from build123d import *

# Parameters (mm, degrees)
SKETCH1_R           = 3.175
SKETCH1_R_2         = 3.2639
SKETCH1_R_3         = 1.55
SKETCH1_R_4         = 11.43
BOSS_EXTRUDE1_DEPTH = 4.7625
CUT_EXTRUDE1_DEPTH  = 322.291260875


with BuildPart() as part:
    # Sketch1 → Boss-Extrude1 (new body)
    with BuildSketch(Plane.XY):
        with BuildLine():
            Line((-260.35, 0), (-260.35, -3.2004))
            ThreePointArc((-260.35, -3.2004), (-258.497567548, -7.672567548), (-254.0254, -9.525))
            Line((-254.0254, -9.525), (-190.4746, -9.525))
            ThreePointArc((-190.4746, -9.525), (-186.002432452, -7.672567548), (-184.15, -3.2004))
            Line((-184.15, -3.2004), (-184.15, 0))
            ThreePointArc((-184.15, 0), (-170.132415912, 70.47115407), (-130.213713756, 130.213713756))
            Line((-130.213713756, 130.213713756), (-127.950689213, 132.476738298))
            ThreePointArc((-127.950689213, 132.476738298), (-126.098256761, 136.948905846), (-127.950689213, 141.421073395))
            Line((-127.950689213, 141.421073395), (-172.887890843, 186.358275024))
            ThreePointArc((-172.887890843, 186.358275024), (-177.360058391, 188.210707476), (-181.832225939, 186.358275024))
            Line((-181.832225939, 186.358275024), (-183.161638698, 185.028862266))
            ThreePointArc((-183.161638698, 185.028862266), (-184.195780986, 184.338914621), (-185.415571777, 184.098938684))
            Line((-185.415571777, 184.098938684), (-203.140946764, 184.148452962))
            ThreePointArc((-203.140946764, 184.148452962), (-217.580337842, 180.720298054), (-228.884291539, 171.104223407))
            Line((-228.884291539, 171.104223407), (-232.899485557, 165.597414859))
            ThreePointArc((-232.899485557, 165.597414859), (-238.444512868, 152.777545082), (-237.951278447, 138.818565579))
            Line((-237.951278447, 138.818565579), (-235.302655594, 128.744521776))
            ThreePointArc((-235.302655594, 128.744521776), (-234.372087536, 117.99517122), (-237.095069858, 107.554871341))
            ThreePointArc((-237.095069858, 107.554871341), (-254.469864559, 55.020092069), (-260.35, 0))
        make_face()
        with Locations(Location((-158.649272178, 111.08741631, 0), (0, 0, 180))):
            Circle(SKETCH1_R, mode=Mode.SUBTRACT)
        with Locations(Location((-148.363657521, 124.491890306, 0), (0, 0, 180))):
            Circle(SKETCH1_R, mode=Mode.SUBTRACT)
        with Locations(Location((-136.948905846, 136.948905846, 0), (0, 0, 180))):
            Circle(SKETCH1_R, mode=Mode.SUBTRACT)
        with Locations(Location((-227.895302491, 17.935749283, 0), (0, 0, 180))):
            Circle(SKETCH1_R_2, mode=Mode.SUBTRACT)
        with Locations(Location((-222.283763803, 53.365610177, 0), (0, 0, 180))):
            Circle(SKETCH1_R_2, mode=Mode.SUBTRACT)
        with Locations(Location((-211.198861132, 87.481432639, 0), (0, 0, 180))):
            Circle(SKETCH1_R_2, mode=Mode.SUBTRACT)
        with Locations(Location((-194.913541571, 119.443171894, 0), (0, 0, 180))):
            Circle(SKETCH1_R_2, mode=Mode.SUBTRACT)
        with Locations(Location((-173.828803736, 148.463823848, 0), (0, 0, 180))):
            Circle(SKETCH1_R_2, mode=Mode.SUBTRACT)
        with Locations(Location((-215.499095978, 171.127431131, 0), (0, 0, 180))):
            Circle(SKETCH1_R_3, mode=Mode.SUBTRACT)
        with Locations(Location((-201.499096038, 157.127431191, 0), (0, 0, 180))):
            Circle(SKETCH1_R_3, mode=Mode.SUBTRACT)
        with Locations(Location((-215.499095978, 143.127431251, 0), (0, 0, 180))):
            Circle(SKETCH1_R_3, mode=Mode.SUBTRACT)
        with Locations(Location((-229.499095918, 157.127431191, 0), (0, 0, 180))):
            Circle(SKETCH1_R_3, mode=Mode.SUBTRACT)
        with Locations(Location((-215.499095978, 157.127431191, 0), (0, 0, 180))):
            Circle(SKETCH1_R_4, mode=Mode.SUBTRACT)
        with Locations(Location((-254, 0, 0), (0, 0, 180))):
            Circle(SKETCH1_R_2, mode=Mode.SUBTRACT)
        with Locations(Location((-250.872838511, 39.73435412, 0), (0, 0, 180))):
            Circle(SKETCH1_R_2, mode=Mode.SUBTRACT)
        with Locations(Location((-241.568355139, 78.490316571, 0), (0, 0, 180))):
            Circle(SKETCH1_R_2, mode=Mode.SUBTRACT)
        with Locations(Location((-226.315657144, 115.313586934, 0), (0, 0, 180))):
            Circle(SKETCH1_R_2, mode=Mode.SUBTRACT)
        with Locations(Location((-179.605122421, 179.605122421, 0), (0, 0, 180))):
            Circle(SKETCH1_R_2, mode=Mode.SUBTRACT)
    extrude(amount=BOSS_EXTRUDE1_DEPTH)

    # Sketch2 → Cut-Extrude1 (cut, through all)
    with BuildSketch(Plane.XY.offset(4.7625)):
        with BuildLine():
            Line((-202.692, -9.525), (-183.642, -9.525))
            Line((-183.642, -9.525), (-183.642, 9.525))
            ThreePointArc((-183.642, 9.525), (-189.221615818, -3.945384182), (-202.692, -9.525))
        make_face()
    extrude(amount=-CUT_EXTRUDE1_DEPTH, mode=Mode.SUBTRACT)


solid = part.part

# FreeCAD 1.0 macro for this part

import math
import FreeCAD as App
import Part
import Sketcher
Q = App.Units.Quantity

doc = App.newDocument("Part")
body = doc.addObject("PartDesign::Body", "Body")

# Sketch on XY plane
sketch1 = body.newObject("Sketcher::SketchObject", "Sketch")
sketch1.AttachmentSupport = (doc.getObject("XY_Plane"), [""])
sketch1.MapMode = "FlatFace"
sketch1.addGeometry(Part.LineSegment(App.Vector(-260.35, 0, 0), App.Vector(-260.35, -3.2004, 0)), False)
sketch1.addGeometry(Part.ArcOfCircle(Part.Circle(App.Vector(-254.0254, -3.2004, 0), App.Vector(0, 0, 1), 6.3246), math.radians(-180), math.radians(-90)), False)
sketch1.addGeometry(Part.LineSegment(App.Vector(-254.0254, -9.525, 0), App.Vector(-190.4746, -9.525, 0)), False)
sketch1.addGeometry(Part.ArcOfCircle(Part.Circle(App.Vector(-190.4746, -3.2004, 0), App.Vector(0, 0, 1), 6.3246), math.radians(-90), math.radians(0)), False)
sketch1.addGeometry(Part.LineSegment(App.Vector(-184.15, -3.2004, 0), App.Vector(-184.15, 0, 0)), False)
sketch1.addGeometry(Part.ArcOfCircle(Part.Circle(App.Vector(0, 0, 0), App.Vector(0, 0, 1), 184.15), math.radians(135), math.radians(180)), False)
sketch1.addGeometry(Part.LineSegment(App.Vector(-130.213714, 130.213714, 0), App.Vector(-127.950689, 132.476738, 0)), False)
sketch1.addGeometry(Part.ArcOfCircle(Part.Circle(App.Vector(-132.422857, 136.948906, 0), App.Vector(0, 0, 1), 6.3246), math.radians(-45), math.radians(45)), False)
sketch1.addGeometry(Part.LineSegment(App.Vector(-127.950689, 141.421073, 0), App.Vector(-172.887891, 186.358275, 0)), False)
sketch1.addGeometry(Part.ArcOfCircle(Part.Circle(App.Vector(-177.360058, 181.886107, 0), App.Vector(0, 0, 1), 6.3246), math.radians(45), math.radians(135)), False)
sketch1.addGeometry(Part.LineSegment(App.Vector(-181.832226, 186.358275, 0), App.Vector(-183.161639, 185.028862, 0)), False)
sketch1.addGeometry(Part.ArcOfCircle(Part.Circle(App.Vector(-185.406703, 187.273926, 0), App.Vector(0, 0, 1), 3.175), math.radians(-90.16005), math.radians(-45)), False)
sketch1.addGeometry(Part.LineSegment(App.Vector(-185.415572, 184.098939, 0), App.Vector(-203.140947, 184.148453, 0)), False)
sketch1.addGeometry(Part.ArcOfCircle(Part.Circle(App.Vector(-203.229637, 152.398577, 0), App.Vector(0, 0, 1), 31.75), math.radians(89.83995), math.radians(143.902988)), False)
sketch1.addGeometry(Part.LineSegment(App.Vector(-228.884292, 171.104223, 0), App.Vector(-232.899486, 165.597415, 0)), False)
sketch1.addGeometry(Part.ArcOfCircle(Part.Circle(App.Vector(-207.244831, 146.891768, 0), App.Vector(0, 0, 1), 31.75), math.radians(143.902988), math.radians(194.730577)), False)
sketch1.addGeometry(Part.LineSegment(App.Vector(-237.951278, 138.818566, 0), App.Vector(-235.302656, 128.744522, 0)), False)
sketch1.addGeometry(Part.ArcOfCircle(Part.Circle(App.Vector(-266.009103, 120.671319, 0), App.Vector(0, 0, 1), 31.75), math.radians(-24.400757), math.radians(14.730577)), False)
sketch1.addGeometry(Part.ArcOfCircle(Part.Circle(App.Vector(0, 0, 0), App.Vector(0, 0, 1), 260.35), math.radians(155.599243), math.radians(180)), False)
sketch1.addGeometry(Part.Circle(App.Vector(-254, 0, 0), App.Vector(0, 0, 1), 3.2639), False)
sketch1.addGeometry(Part.Circle(App.Vector(-227.895302, 17.935749, 0), App.Vector(0, 0, 1), 3.2639), False)
sketch1.addGeometry(Part.Circle(App.Vector(-250.872839, 39.734354, 0), App.Vector(0, 0, 1), 3.2639), False)
sketch1.addGeometry(Part.Circle(App.Vector(-241.568355, 78.490317, 0), App.Vector(0, 0, 1), 3.2639), False)
sketch1.addGeometry(Part.Circle(App.Vector(-222.283764, 53.36561, 0), App.Vector(0, 0, 1), 3.2639), False)
sketch1.addGeometry(Part.Circle(App.Vector(-211.198861, 87.481433, 0), App.Vector(0, 0, 1), 3.2639), False)
sketch1.addGeometry(Part.Circle(App.Vector(-226.315657, 115.313587, 0), App.Vector(0, 0, 1), 3.2639), False)
sketch1.addGeometry(Part.Circle(App.Vector(-229.499096, 157.127431, 0), App.Vector(0, 0, 1), 1.55), False)
sketch1.addGeometry(Part.Circle(App.Vector(-215.499096, 143.127431, 0), App.Vector(0, 0, 1), 1.55), False)
sketch1.addGeometry(Part.Circle(App.Vector(-215.499096, 157.127431, 0), App.Vector(0, 0, 1), 11.43), False)
sketch1.addGeometry(Part.Circle(App.Vector(-201.499096, 157.127431, 0), App.Vector(0, 0, 1), 1.55), False)
sketch1.addGeometry(Part.Circle(App.Vector(-215.499096, 171.127431, 0), App.Vector(0, 0, 1), 1.55), False)
sketch1.addGeometry(Part.Circle(App.Vector(-194.913542, 119.443172, 0), App.Vector(0, 0, 1), 3.2639), False)
sketch1.addGeometry(Part.Circle(App.Vector(-158.649272, 111.087416, 0), App.Vector(0, 0, 1), 3.175), False)
sketch1.addGeometry(Part.Circle(App.Vector(-148.363658, 124.49189, 0), App.Vector(0, 0, 1), 3.175), False)
sketch1.addGeometry(Part.Circle(App.Vector(-173.828804, 148.463824, 0), App.Vector(0, 0, 1), 3.2639), False)
sketch1.addGeometry(Part.Circle(App.Vector(-179.605122, 179.605122, 0), App.Vector(0, 0, 1), 3.2639), False)
sketch1.addGeometry(Part.Circle(App.Vector(-136.948906, 136.948906, 0), App.Vector(0, 0, 1), 3.175), False)
sketch1.addConstraint(Sketcher.Constraint("Tangent", 0, 2, 1, 1))
sketch1.addConstraint(Sketcher.Constraint("Tangent", 1, 2, 2, 1))
sketch1.addConstraint(Sketcher.Constraint("Tangent", 2, 2, 3, 1))
sketch1.addConstraint(Sketcher.Constraint("Tangent", 3, 2, 4, 1))
sketch1.addConstraint(Sketcher.Constraint("Tangent", 4, 2, 5, 2))
sketch1.addConstraint(Sketcher.Constraint("Tangent", 5, 1, 6, 1))
sketch1.addConstraint(Sketcher.Constraint("Tangent", 6, 2, 7, 1))
sketch1.addConstraint(Sketcher.Constraint("Tangent", 7, 2, 8, 1))
sketch1.addConstraint(Sketcher.Constraint("Tangent", 8, 2, 9, 1))
sketch1.addConstraint(Sketcher.Constraint("Tangent", 9, 2, 10, 1))
sketch1.addConstraint(Sketcher.Constraint("Tangent", 10, 2, 11, 2))
sketch1.addConstraint(Sketcher.Constraint("Tangent", 11, 1, 12, 1))
sketch1.addConstraint(Sketcher.Constraint("Tangent", 12, 2, 13, 1))
sketch1.addConstraint(Sketcher.Constraint("Tangent", 13, 2, 14, 1))
sketch1.addConstraint(Sketcher.Constraint("Tangent", 14, 2, 15, 1))
sketch1.addConstraint(Sketcher.Constraint("Tangent", 15, 2, 16, 1))
sketch1.addConstraint(Sketcher.Constraint("Tangent", 16, 2, 17, 2))
sketch1.addConstraint(Sketcher.Constraint("Tangent", 17, 1, 18, 1))
sketch1.addConstraint(Sketcher.Constraint("Tangent", 18, 2, 0, 1))
sketch1.addConstraint(Sketcher.Constraint("Vertical", 0))
sketch1.addConstraint(Sketcher.Constraint("Horizontal", 2))
sketch1.addConstraint(Sketcher.Constraint("Vertical", 4))
sketch1.addConstraint(Sketcher.Constraint("Coincident", 5, 3, -1, 1))
sketch1.addConstraint(Sketcher.Constraint("Coincident", 18, 3, -1, 1))
sketch1.addConstraint(Sketcher.Constraint("Equal", 1, 3))
sketch1.addConstraint(Sketcher.Constraint("Equal", 3, 7))
sketch1.addConstraint(Sketcher.Constraint("Equal", 7, 9))
sketch1.addConstraint(Sketcher.Constraint("Equal", 13, 15))
sketch1.addConstraint(Sketcher.Constraint("Equal", 15, 17))
sketch1.addConstraint(Sketcher.Constraint("Equal", 19, 20))
sketch1.addConstraint(Sketcher.Constraint("Equal", 20, 21))
sketch1.addConstraint(Sketcher.Constraint("Equal", 21, 22))
sketch1.addConstraint(Sketcher.Constraint("Equal", 22, 23))
sketch1.addConstraint(Sketcher.Constraint("Equal", 23, 24))
sketch1.addConstraint(Sketcher.Constraint("Equal", 24, 25))
sketch1.addConstraint(Sketcher.Constraint("Equal", 26, 27))
sketch1.addConstraint(Sketcher.Constraint("Equal", 27, 29))
sketch1.addConstraint(Sketcher.Constraint("Equal", 29, 30))
sketch1.addConstraint(Sketcher.Constraint("Equal", 25, 31))
sketch1.addConstraint(Sketcher.Constraint("Equal", 11, 32))
sketch1.addConstraint(Sketcher.Constraint("Equal", 32, 33))
sketch1.addConstraint(Sketcher.Constraint("Equal", 31, 34))
sketch1.addConstraint(Sketcher.Constraint("Equal", 34, 35))
sketch1.addConstraint(Sketcher.Constraint("Equal", 33, 36))
sketch1.addConstraint(Sketcher.Constraint("PointOnObject", 19, 3, -1))
sketch1.addConstraint(Sketcher.Constraint("Perpendicular", 6, 8))
sketch1.addConstraint(Sketcher.Constraint("Perpendicular", 8, 10))
sketch1.addConstraint(Sketcher.Constraint("Horizontal", 26, 3, 28, 3))
sketch1.addConstraint(Sketcher.Constraint("Horizontal", 28, 3, 29, 3))
sketch1.addConstraint(Sketcher.Constraint("Horizontal", 7, 3, 36, 3))
sketch1.addConstraint(Sketcher.Constraint("Horizontal", 8, 2, 9, 2))
sketch1.addConstraint(Sketcher.Constraint("Vertical", 27, 3, 28, 3))
sketch1.addConstraint(Sketcher.Constraint("Vertical", 28, 3, 30, 3))
sketch1.addConstraint(Sketcher.Constraint("Diameter", 28, Q("0.9 in")))
sketch1.addConstraint(Sketcher.Constraint("Diameter", 32, Q("0.25 in")))
sketch1.addConstraint(Sketcher.Constraint("Radius", 5, Q("7.25 in")))
sketch1.addConstraint(Sketcher.Constraint("Radius", 13, Q("1.25 in")))
sketch1.addConstraint(Sketcher.Constraint("Radius", 18, Q("10.25 in")))
sketch1.addConstraint(Sketcher.Constraint("Diameter", 19, Q("0.257 in")))
sketch1.addConstraint(Sketcher.Constraint("DistanceX", 19, 3, -1, 1, Q("10 in")))
sketch1.addConstraint(Sketcher.Constraint("Radius", 1, Q("0.249 in")))
sketch1.addConstraint(Sketcher.Constraint("Diameter", 26, 3.1))
sketch1.addConstraint(Sketcher.Constraint("DistanceY", 0, 2, 0, 1, Q("0.126 in")))
sketch1.addConstraint(Sketcher.Constraint("Distance", 6, Q("0.126 in")))
sketch1.addConstraint(Sketcher.Constraint("Distance", 8, Q("2.502 in")))
sketch1.addConstraint(Sketcher.Constraint("DistanceY", 7, 3, 11, 3, Q("1.9813 in")))
sketch1.addConstraint(Sketcher.Constraint("DistanceX", 22, 3, 25, 3, Q("0.6004999 in")))
sketch1.addConstraint(Sketcher.Constraint("DistanceX", 17, 3, 11, 3, 80.6024))
sketch1.addConstraint(Sketcher.Constraint("DistanceX", 17, 3, 20, 3, 38.1138))
sketch1.addConstraint(Sketcher.Constraint("DistanceX", 26, 3, 27, 3, 14.0))
sketch1.addConstraint(Sketcher.Constraint("DistanceY", 27, 3, 26, 3, 14.0))
sketch1.addConstraint(Sketcher.Constraint("DistanceX", 28, 3, 29, 3, 14.0))
sketch1.addConstraint(Sketcher.Constraint("DistanceY", 28, 3, 30, 3, 14.0))
sketch1.addConstraint(Sketcher.Constraint("DistanceX", 33, 3, 7, 3, 15.940801))
sketch1.addConstraint(Sketcher.Constraint("DistanceY", 34, 3, 35, 3, 31.141299))
sketch1.addConstraint(Sketcher.Constraint("DistanceX", 16, 2, 25, 3, 8.986998))
sketch1.addConstraint(Sketcher.Constraint("Distance", 16, 10.416408))
sketch1.addConstraint(Sketcher.Constraint("DistanceX", 15, 3, -1, 1, 207.244831))
sketch1.addConstraint(Sketcher.Constraint("DistanceY", -1, 1, 20, 3, 17.935749))
sketch1.addConstraint(Sketcher.Constraint("DistanceX", 21, 3, -1, 1, 250.872839))
sketch1.addConstraint(Sketcher.Constraint("DistanceY", -1, 1, 23, 3, 53.36561))
sketch1.addConstraint(Sketcher.Constraint("DistanceX", 24, 3, -1, 1, 211.198861))
sketch1.addConstraint(Sketcher.Constraint("DistanceY", -1, 1, 26, 3, 157.127431))
sketch1.addConstraint(Sketcher.Constraint("DistanceX", 31, 3, -1, 1, 194.913542))
sketch1.addConstraint(Sketcher.Constraint("DistanceY", -1, 1, 31, 3, 119.443172))
sketch1.addConstraint(Sketcher.Constraint("DistanceY", -1, 1, 33, 3, 124.49189))
sketch1.addConstraint(Sketcher.Constraint("DistanceX", 11, 1, -1, 1, 185.415572))
sketch1.addConstraint(Sketcher.Constraint("DistanceX", 13, 2, -1, 1, 228.884292))
sketch1.addConstraint(Sketcher.Constraint("DistanceY", 22, 3, 15, 3, 68.401452))
sketch1.addConstraint(Sketcher.Constraint("DistanceX", 22, 3, 23, 3, 19.284591))
sketch1.addConstraint(Sketcher.Constraint("DistanceY", 21, 3, 24, 3, 47.747079))
sketch1.addConstraint(Sketcher.Constraint("DistanceY", 25, 3, 15, 3, 31.578181))
sketch1.addConstraint(Sketcher.Constraint("DistanceX", 26, 3, 13, 3, 26.269459))
sketch1.addConstraint(Sketcher.Constraint("DistanceY", 24, 3, 31, 3, 31.961739))
sketch1.addConstraint(Sketcher.Constraint("DistanceY", 32, 3, 7, 3, 25.86149))
sketch1.addConstraint(Sketcher.Constraint("DistanceX", 31, 3, 32, 3, 36.264269))
sketch1.addConstraint(Sketcher.Constraint("DistanceX", 11, 3, 35, 3, 5.80158))
sketch1.addConstraint(Sketcher.Constraint("DistanceY", 29, 3, 35, 3, 22.477691))
sketch1.addConstraint(Sketcher.Constraint("DistanceX", 35, 3, 34, 3, 5.776319))
sketch1.addConstraint(Sketcher.Constraint("DistanceX", 36, 3, 7, 3, 4.526049))
pad1 = body.newObject("PartDesign::Pad", "Pad")
pad1.Profile = sketch1
pad1.Length = Q("0.1875 in")

# Sketch on XY plane
sketch2 = body.newObject("Sketcher::SketchObject", "Sketch001")
sketch2.AttachmentSupport = (doc.getObject("XY_Plane"), [""])
sketch2.MapMode = "FlatFace"
sketch2.AttachmentOffset = App.Placement(App.Vector(0, 0, 0.1875 * 25.4), App.Rotation())
sketch2.addGeometry(Part.LineSegment(App.Vector(-202.692, -9.525, 0), App.Vector(-183.642, -9.525, 0)), False)
sketch2.addGeometry(Part.LineSegment(App.Vector(-183.642, -9.525, 0), App.Vector(-183.642, 9.525, 0)), False)
sketch2.addGeometry(Part.ArcOfCircle(Part.Circle(App.Vector(-202.692, 9.525, 0), App.Vector(0, 0, 1), 19.05), math.radians(-90), math.radians(0)), False)
sketch2.addConstraint(Sketcher.Constraint("Coincident", 0, 2, 1, 1))
sketch2.addConstraint(Sketcher.Constraint("Tangent", 1, 2, 2, 2))
sketch2.addConstraint(Sketcher.Constraint("Tangent", 2, 1, 0, 1))
sketch2.addConstraint(Sketcher.Constraint("Horizontal", 0))
sketch2.addConstraint(Sketcher.Constraint("Vertical", 1))
sketch2.addConstraint(Sketcher.Constraint("Radius", 2, Q("0.75 in")))
sketch2.addConstraint(Sketcher.Constraint("DistanceX", 2, 3, -1, 1, Q("7.98 in")))
sketch2.addConstraint(Sketcher.Constraint("DistanceY", -1, 1, 2, 3, Q("0.375 in")))
pocket1 = body.newObject("PartDesign::Pocket", "Pocket")
pocket1.Profile = sketch2
pocket1.Type = "ThroughAll"

doc.recompute()
